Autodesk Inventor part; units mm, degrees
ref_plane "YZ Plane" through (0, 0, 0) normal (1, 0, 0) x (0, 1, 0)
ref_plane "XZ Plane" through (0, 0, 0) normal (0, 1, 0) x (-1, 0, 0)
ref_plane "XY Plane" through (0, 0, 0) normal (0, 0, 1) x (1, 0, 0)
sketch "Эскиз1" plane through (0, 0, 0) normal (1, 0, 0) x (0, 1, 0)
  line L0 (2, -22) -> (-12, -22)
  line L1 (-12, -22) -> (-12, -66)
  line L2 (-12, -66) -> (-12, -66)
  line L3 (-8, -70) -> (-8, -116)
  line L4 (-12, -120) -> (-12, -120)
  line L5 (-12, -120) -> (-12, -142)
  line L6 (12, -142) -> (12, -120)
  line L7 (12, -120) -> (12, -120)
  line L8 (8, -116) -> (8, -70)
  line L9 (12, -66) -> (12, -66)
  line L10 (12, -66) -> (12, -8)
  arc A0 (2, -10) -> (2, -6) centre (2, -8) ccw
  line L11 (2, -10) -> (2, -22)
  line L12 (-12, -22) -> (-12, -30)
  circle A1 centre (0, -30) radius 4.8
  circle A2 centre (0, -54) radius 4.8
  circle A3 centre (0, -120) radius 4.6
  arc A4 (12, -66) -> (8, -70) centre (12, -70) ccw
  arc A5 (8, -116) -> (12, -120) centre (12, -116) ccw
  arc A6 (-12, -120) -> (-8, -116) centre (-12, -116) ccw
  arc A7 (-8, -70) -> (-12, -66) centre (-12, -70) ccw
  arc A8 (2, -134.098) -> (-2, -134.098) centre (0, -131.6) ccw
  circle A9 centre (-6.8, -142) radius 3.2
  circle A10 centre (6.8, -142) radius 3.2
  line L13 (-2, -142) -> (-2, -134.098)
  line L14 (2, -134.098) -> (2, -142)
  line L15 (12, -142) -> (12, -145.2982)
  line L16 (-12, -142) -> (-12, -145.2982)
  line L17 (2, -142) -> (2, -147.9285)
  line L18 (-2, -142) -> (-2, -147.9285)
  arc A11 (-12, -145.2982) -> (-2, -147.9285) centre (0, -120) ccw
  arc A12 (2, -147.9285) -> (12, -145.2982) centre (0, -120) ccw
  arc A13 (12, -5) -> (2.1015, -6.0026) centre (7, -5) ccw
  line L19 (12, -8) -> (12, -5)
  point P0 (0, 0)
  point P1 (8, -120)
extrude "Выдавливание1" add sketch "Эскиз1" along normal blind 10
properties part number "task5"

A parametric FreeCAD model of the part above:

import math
import FreeCAD as App
import Part
import Sketcher

doc = App.newDocument("Part")
body = doc.addObject("PartDesign::Body", "Body")

# Sketch on YZ plane
sketch1 = doc.addObject("Sketcher::SketchObject", "Sketch")
body.addObject(sketch1)
sketch1.AttachmentSupport = (doc.YZ_Plane, [""])
sketch1.MapMode = "FlatFace"
sketch1.addGeometry([
    Part.LineSegment(App.Vector(2, -10, 0), App.Vector(2, -22, 0)),  # 0
    Part.LineSegment(App.Vector(2, -22, 0), App.Vector(-12, -22, 0)),  # 1
    Part.LineSegment(App.Vector(-12, -22, 0), App.Vector(-12, -66, 0)),  # 2
    Part.ArcOfCircle(Part.Circle(App.Vector(-12, -70, 0), App.Vector(0, 0, 1), 4), math.radians(0), math.radians(90)),  # 3
    Part.LineSegment(App.Vector(-8, -70, 0), App.Vector(-8, -116, 0)),  # 4
    Part.ArcOfCircle(Part.Circle(App.Vector(-12, -116, 0), App.Vector(0, 0, 1), 4), math.radians(-90), math.radians(0)),  # 5
    Part.LineSegment(App.Vector(-12, -120, 0), App.Vector(-12, -145.3, 0)),  # 6
    Part.ArcOfCircle(Part.Circle(App.Vector(0, -120, 0), App.Vector(0, 0, 1), 28), math.radians(-115), math.radians(-94)),  # 7
    Part.LineSegment(App.Vector(-2, -147.9, 0), App.Vector(-2, -134.1, 0)),  # 8
    Part.ArcOfCircle(Part.Circle(App.Vector(0, -131.6, 0), App.Vector(0, 0, 1), 3.2), math.radians(-51), math.radians(231)),  # 9
    Part.LineSegment(App.Vector(2, -134.1, 0), App.Vector(2, -147.9, 0)),  # 10
    Part.ArcOfCircle(Part.Circle(App.Vector(0, -120, 0), App.Vector(0, 0, 1), 28), math.radians(-86), math.radians(-65)),  # 11
    Part.LineSegment(App.Vector(12, -145.3, 0), App.Vector(12, -120, 0)),  # 12
    Part.ArcOfCircle(Part.Circle(App.Vector(12, -116, 0), App.Vector(0, 0, 1), 4), math.radians(180), math.radians(270)),  # 13
    Part.LineSegment(App.Vector(8, -116, 0), App.Vector(8, -70, 0)),  # 14
    Part.ArcOfCircle(Part.Circle(App.Vector(12, -70, 0), App.Vector(0, 0, 1), 4), math.radians(90), math.radians(180)),  # 15
    Part.LineSegment(App.Vector(12, -66, 0), App.Vector(12, -5, 0)),  # 16
    Part.ArcOfCircle(Part.Circle(App.Vector(7, -5, 0), App.Vector(0, 0, 1), 5), math.radians(0), math.radians(192)),  # 17
    Part.ArcOfCircle(Part.Circle(App.Vector(2, -8, 0), App.Vector(0, 0, 1), 2), math.radians(-90), math.radians(87)),  # 18
    Part.Circle(App.Vector(-6.8, -142, 0), App.Vector(0, 0, 1), 3.2),  # 19
    Part.Circle(App.Vector(0, -120, 0), App.Vector(0, 0, 1), 4.6),  # 20
    Part.Circle(App.Vector(6.8, -142, 0), App.Vector(0, 0, 1), 3.2),  # 21
    Part.Circle(App.Vector(0, -54, 0), App.Vector(0, 0, 1), 4.8),  # 22
    Part.Circle(App.Vector(0, -30, 0), App.Vector(0, 0, 1), 4.8),  # 23
], False)
sketch1.addConstraint([
    Sketcher.Constraint("Coincident", 0, 2, 1, 1),
    Sketcher.Constraint("Coincident", 1, 2, 2, 1),
    Sketcher.Constraint("Coincident", 2, 2, 3, 2),
    Sketcher.Constraint("Tangent", 3, 1, 4, 1),
    Sketcher.Constraint("Tangent", 4, 2, 5, 2),
    Sketcher.Constraint("Coincident", 5, 1, 6, 1),
    Sketcher.Constraint("Coincident", 6, 2, 7, 1),
    Sketcher.Constraint("Coincident", 7, 2, 8, 1),
    Sketcher.Constraint("Coincident", 8, 2, 9, 2),
    Sketcher.Constraint("Coincident", 9, 1, 10, 1),
    Sketcher.Constraint("Coincident", 10, 2, 11, 1),
    Sketcher.Constraint("Coincident", 11, 2, 12, 1),
    Sketcher.Constraint("Coincident", 12, 2, 13, 2),
    Sketcher.Constraint("Tangent", 13, 1, 14, 1),
    Sketcher.Constraint("Tangent", 14, 2, 15, 2),
    Sketcher.Constraint("Coincident", 15, 1, 16, 1),
    Sketcher.Constraint("Tangent", 16, 2, 17, 1),
    Sketcher.Constraint("Coincident", 17, 2, 18, 2),
    Sketcher.Constraint("Coincident", 18, 1, 0, 1),
    Sketcher.Constraint("Vertical", 0),
    Sketcher.Constraint("Horizontal", 1),
    Sketcher.Constraint("Vertical", 2),
    Sketcher.Constraint("Vertical", 4),
    Sketcher.Constraint("Vertical", 6),
    Sketcher.Constraint("Vertical", 8),
    Sketcher.Constraint("Vertical", 10),
    Sketcher.Constraint("Vertical", 12),
    Sketcher.Constraint("Vertical", 14),
    Sketcher.Constraint("Vertical", 16),
    Sketcher.Constraint("Equal", 3, 5),
    Sketcher.Constraint("Equal", 5, 13),
    Sketcher.Constraint("Equal", 13, 15),
    Sketcher.Constraint("Equal", 9, 19),
    Sketcher.Constraint("Equal", 19, 21),
    Sketcher.Constraint("Equal", 22, 23),
    Sketcher.Constraint("Symmetric", 5, 3, 13, 3, -2),
    Sketcher.Constraint("Symmetric", 19, 3, 21, 3, -2),
    Sketcher.Constraint("Symmetric", 8, 2, 9, 1, -2),
    Sketcher.Constraint("Symmetric", 6, 2, 11, 2, -2),
    Sketcher.Constraint("Symmetric", 2, 2, 15, 1, -2),
    Sketcher.Constraint("PointOnObject", 11, 3, -2),
    Sketcher.Constraint("PointOnObject", 20, 3, -2),
    Sketcher.Constraint("PointOnObject", 22, 3, -2),
    Sketcher.Constraint("PointOnObject", 23, 3, -2),
    Sketcher.Constraint("Horizontal", 20, 3, 5, 1),
    Sketcher.Constraint("Horizontal", 7, 2, 10, 2),
    Sketcher.Constraint("Vertical", 18, 3, 0, 2),
    Sketcher.Constraint("Vertical", 5, 3, 1, 2),
    Sketcher.Constraint("Vertical", 2, 2, 5, 1),
    Sketcher.Constraint("Vertical", 0, 2, 9, 1),
    Sketcher.Constraint("Radius", 3, 4.0),
    Sketcher.Constraint("Radius", 17, 5.0),
    Sketcher.Constraint("Radius", 18, 2.0),
    Sketcher.Constraint("Diameter", 19, 6.4),
    Sketcher.Constraint("Diameter", 20, 9.2),
    Sketcher.Constraint("Diameter", 22, 9.6),
    Sketcher.Constraint("DistanceX", 1, 2, 1, 1, 14.0),
    Sketcher.Constraint("DistanceY", 0, 2, 0, 1, 12.0),
    Sketcher.Constraint("DistanceY", 2, 2, 2, 1, 44.0),
    Sketcher.Constraint("DistanceY", 4, 2, 4, 1, 46.0),
    Sketcher.Constraint("DistanceY", 16, 1, 16, 2, 61.0),
    Sketcher.Constraint("DistanceX", 3, 3, -1, 1, 12.0),
    Sketcher.Constraint("DistanceY", 3, 3, -1, 1, 70.0),
    Sketcher.Constraint("DistanceY", 19, 3, -1, 1, 142.0),
    Sketcher.Constraint("DistanceY", 22, 3, -1, 1, 54.0),
    Sketcher.Constraint("DistanceY", 23, 3, -1, 1, 30.0),
    Sketcher.Constraint("Radius", 7, 28.001),
    Sketcher.Constraint("Radius", 11, 27.999),
    Sketcher.Constraint("DistanceY", 9, 3, -1, 1, 131.6),
    Sketcher.Constraint("DistanceX", 19, 3, -1, 1, 6.8),
    Sketcher.Constraint("DistanceY", 6, 2, 6, 1, 25.2982),
])
pad1 = doc.addObject("PartDesign::Pad", "Pad")
body.addObject(pad1)
pad1.Profile = sketch1
pad1.Length = 10

doc.recompute()
